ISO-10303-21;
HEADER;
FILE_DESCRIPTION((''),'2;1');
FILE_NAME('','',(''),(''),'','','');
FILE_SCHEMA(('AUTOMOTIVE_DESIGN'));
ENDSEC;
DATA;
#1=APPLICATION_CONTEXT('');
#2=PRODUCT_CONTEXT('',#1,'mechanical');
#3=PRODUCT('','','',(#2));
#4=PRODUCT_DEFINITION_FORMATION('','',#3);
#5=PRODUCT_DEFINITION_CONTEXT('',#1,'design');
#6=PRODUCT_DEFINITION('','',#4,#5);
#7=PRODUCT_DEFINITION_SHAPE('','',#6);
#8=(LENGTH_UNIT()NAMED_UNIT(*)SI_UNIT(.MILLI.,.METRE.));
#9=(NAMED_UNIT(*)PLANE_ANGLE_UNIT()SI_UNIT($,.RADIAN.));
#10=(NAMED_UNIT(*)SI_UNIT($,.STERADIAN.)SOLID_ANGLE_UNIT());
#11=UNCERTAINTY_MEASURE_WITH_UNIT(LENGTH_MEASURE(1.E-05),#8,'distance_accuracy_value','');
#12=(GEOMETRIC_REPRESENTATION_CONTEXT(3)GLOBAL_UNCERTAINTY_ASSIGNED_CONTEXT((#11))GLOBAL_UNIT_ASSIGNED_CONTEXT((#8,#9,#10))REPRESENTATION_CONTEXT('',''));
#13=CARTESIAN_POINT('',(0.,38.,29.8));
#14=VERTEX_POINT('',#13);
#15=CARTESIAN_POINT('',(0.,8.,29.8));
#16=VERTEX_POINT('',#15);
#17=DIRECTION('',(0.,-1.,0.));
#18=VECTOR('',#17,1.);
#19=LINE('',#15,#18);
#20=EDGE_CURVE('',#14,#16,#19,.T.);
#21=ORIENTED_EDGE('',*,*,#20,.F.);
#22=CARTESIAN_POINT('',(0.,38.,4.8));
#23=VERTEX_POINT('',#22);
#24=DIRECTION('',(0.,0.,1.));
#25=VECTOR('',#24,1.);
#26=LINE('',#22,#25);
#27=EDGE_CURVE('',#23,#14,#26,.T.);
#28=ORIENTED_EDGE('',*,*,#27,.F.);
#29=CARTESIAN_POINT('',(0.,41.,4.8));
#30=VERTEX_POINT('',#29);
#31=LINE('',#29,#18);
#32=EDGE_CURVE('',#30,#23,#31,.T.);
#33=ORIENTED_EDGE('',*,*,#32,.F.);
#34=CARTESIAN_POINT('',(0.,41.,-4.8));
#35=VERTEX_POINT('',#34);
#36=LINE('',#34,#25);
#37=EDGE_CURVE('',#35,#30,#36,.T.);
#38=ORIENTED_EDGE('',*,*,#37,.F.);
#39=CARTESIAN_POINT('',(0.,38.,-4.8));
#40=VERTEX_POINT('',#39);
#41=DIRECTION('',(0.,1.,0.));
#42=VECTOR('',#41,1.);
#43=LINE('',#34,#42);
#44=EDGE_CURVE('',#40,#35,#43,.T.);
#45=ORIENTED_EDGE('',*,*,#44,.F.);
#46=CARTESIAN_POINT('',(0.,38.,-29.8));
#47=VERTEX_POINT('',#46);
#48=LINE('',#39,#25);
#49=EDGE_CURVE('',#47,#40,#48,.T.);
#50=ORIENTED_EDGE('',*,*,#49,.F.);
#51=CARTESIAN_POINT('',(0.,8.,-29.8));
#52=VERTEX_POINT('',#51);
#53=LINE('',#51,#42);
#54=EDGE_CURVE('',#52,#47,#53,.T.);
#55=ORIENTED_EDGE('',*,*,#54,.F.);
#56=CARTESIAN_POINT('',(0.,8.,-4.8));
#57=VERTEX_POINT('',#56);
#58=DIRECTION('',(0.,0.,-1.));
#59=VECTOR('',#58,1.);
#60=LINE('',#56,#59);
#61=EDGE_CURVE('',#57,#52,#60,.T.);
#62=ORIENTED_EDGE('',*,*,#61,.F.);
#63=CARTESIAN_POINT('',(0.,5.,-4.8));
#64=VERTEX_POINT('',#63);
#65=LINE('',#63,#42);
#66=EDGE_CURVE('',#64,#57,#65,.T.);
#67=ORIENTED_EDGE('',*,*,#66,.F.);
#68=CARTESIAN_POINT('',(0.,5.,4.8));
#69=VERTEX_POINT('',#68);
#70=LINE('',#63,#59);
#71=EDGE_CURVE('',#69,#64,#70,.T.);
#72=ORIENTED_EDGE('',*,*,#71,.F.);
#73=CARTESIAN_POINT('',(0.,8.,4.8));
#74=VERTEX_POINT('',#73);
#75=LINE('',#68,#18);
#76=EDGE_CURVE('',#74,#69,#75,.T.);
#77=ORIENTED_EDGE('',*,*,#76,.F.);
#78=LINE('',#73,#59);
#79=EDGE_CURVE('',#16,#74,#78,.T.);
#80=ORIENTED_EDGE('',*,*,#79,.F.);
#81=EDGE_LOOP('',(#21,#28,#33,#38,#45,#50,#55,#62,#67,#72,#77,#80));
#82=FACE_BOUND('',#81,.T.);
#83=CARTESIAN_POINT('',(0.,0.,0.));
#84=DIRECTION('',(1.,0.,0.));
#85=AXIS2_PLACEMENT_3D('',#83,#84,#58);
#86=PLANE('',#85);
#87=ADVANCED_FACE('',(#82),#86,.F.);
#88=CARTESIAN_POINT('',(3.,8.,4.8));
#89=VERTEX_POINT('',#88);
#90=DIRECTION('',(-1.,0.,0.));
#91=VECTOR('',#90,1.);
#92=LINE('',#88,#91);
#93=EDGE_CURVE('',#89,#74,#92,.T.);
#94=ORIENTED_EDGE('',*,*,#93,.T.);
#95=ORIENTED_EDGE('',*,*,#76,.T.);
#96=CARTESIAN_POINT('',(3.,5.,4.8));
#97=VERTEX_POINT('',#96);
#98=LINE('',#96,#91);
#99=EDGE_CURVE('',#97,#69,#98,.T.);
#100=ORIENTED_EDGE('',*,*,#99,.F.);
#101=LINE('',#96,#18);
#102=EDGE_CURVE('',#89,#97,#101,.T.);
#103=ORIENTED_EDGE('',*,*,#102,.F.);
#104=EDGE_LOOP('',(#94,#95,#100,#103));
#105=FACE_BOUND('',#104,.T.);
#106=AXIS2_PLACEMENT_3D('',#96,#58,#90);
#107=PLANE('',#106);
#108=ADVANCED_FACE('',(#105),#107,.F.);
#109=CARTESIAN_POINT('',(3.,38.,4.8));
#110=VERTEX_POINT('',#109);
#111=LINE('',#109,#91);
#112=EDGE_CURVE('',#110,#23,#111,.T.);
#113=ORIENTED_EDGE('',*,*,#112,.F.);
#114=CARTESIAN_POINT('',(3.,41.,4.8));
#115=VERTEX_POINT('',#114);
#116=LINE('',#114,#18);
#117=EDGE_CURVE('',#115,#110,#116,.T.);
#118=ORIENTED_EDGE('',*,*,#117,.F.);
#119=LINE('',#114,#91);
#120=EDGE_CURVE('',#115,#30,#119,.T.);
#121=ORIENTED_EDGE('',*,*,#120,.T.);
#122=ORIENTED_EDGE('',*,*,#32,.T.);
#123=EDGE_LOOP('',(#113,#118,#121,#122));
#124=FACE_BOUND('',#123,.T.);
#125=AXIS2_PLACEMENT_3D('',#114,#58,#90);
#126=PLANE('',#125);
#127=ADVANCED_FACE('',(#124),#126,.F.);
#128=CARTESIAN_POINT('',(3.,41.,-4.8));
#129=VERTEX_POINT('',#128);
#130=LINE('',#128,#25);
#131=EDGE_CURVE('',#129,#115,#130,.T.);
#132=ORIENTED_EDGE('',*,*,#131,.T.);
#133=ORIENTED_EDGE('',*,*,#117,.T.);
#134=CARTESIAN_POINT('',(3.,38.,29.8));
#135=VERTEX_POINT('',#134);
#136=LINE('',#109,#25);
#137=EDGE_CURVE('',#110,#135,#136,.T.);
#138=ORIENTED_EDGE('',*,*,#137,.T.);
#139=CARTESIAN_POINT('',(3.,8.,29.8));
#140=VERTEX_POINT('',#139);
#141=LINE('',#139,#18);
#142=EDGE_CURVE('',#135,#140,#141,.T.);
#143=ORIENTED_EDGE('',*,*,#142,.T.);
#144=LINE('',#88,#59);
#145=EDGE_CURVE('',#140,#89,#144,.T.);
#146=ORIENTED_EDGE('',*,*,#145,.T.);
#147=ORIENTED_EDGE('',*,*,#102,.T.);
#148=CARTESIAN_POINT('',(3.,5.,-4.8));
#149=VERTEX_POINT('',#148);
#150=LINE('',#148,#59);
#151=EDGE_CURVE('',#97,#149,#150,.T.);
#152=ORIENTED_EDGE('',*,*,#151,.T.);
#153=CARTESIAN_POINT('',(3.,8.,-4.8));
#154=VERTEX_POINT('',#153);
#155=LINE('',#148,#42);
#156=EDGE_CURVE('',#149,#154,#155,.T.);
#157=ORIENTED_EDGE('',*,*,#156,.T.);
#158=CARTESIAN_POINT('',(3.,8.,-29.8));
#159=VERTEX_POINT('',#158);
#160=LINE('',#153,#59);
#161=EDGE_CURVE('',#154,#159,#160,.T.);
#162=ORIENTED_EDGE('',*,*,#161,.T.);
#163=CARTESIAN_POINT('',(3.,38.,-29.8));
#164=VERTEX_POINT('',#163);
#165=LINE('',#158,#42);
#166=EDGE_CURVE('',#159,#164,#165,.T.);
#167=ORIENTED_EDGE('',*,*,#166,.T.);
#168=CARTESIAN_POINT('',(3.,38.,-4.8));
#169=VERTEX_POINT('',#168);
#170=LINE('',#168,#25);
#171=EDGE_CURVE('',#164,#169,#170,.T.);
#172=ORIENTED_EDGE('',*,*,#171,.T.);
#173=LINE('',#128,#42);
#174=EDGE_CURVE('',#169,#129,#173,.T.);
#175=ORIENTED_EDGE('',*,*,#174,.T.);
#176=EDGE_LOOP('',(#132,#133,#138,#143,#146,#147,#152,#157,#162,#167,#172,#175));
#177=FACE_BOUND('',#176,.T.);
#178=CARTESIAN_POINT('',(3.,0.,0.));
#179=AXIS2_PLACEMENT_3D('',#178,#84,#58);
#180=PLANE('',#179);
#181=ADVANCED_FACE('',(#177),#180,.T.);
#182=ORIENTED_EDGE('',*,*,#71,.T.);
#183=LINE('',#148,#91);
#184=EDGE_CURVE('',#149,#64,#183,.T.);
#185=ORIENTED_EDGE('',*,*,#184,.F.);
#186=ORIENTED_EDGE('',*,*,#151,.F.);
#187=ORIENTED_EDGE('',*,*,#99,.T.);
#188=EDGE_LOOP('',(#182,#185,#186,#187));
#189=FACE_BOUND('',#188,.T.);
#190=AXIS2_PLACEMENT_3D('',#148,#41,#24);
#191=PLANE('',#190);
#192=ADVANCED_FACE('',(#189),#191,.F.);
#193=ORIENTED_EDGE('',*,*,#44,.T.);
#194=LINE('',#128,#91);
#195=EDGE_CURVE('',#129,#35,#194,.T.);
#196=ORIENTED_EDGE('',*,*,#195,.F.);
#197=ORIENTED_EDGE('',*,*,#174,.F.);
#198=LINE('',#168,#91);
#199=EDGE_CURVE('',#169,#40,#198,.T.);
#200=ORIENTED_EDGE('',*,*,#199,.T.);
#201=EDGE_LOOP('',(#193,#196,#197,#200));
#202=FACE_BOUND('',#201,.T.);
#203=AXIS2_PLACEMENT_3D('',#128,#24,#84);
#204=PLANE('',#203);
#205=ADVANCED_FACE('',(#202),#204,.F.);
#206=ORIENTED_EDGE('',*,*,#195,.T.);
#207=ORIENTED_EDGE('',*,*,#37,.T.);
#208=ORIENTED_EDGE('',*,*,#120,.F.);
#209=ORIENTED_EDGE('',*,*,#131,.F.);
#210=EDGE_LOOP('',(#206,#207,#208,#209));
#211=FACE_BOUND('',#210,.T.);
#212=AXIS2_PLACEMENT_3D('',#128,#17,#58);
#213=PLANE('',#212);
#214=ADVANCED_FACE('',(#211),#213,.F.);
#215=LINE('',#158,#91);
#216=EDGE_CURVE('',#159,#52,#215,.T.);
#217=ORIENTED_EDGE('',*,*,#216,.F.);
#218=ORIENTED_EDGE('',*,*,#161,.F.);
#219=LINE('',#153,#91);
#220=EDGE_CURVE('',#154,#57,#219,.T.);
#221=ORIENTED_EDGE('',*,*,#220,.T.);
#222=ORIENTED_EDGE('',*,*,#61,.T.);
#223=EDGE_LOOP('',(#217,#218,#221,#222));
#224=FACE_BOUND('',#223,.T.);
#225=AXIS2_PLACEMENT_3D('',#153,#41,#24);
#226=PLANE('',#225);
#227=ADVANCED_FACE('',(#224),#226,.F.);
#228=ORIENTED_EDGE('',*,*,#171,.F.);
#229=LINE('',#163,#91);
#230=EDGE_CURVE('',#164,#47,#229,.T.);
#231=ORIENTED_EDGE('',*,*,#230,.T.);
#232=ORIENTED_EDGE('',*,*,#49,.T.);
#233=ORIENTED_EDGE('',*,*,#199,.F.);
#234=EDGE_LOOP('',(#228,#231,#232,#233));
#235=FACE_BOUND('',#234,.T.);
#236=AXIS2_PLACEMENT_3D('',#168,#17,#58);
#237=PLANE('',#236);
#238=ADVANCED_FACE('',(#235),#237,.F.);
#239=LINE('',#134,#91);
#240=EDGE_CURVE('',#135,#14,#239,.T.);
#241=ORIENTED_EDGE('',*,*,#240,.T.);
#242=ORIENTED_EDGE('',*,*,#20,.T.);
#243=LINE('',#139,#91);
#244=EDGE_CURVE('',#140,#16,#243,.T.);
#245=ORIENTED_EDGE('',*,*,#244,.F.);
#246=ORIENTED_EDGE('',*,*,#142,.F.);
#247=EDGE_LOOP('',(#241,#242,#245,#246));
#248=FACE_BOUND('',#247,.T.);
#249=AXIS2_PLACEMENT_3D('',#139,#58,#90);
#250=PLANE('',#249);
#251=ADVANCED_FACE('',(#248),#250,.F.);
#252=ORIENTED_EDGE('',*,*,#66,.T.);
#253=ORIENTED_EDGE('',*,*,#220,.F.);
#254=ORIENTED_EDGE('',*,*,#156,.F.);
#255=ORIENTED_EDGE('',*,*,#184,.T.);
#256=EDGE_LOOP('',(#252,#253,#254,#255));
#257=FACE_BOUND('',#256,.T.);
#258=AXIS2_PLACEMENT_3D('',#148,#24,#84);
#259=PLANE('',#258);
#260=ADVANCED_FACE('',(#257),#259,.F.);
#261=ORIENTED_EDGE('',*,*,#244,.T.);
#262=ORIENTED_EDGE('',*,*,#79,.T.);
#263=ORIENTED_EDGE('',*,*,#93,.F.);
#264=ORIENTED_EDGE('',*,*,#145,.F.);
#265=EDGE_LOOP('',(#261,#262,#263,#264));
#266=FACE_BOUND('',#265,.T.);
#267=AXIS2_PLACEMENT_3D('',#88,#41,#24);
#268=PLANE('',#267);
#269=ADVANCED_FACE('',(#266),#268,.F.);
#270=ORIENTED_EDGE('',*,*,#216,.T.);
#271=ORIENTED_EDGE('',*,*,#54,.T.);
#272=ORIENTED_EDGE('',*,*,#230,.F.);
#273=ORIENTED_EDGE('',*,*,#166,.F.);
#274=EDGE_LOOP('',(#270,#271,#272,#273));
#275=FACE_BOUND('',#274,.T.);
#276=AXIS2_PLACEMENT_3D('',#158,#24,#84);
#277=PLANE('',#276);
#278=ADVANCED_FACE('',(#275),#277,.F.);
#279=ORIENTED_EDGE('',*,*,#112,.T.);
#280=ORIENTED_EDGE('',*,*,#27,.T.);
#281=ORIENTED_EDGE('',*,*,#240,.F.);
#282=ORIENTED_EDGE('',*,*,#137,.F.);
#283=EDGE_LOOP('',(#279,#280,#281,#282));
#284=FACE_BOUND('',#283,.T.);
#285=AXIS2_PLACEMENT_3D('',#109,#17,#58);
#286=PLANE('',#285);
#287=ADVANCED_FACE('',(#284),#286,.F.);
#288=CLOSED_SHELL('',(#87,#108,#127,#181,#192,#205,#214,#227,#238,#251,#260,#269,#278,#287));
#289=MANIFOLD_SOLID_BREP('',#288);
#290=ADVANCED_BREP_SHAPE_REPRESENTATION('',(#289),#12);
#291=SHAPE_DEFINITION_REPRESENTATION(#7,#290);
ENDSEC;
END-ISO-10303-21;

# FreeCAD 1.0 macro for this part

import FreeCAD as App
import Part
import Sketcher

V = App.Vector


def add_polygon(sketch, points):
    """Adds a closed chain of lines whose ends are joined by coincident constraints."""
    first, n = sketch.GeometryCount, len(points)
    for a, b in zip(points, points[1:] + points[:1]):
        sketch.addGeometry(Part.LineSegment(App.Vector(*a, 0), App.Vector(*b, 0)), False)
    for i in range(n):
        sketch.addConstraint(Sketcher.Constraint("Coincident", first + i, 2, first + (i + 1) % n, 1))

doc = App.newDocument("Part")
body = doc.addObject("PartDesign::Body", "Body")

# Sketch on YZ plane
sketch1 = body.newObject("Sketcher::SketchObject", "Sketch")
sketch1.AttachmentSupport = (doc.getObject("YZ_Plane"), [""])
sketch1.MapMode = "FlatFace"
add_polygon(sketch1, [(38, -4.8), (41, -4.8), (41, 4.8), (38, 4.8), (38, 29.8), (8, 29.8), (8, 4.8), (5, 4.8), (5, -4.8), (8, -4.8), (8, -29.8), (38, -29.8)])  # lines 0-11
sketch1.addConstraint([
    Sketcher.Constraint("Horizontal", 0),
    Sketcher.Constraint("Vertical", 1),
    Sketcher.Constraint("Horizontal", 2),
    Sketcher.Constraint("Vertical", 3),
    Sketcher.Constraint("Horizontal", 4),
    Sketcher.Constraint("Vertical", 5),
    Sketcher.Constraint("Horizontal", 6),
    Sketcher.Constraint("Vertical", 7),
    Sketcher.Constraint("Horizontal", 8),
    Sketcher.Constraint("Vertical", 9),
    Sketcher.Constraint("Horizontal", 10),
    Sketcher.Constraint("Vertical", 11),
    Sketcher.Constraint("Symmetric", 5, 2, 8, 2, -1),
    Sketcher.Constraint("Symmetric", 3, 2, 10, 2, -1),
    Sketcher.Constraint("Horizontal", 2, 2, 5, 2),
    Sketcher.Constraint("Horizontal", 0, 2, 7, 2),
    Sketcher.Constraint("Equal", 2, 6),
    Sketcher.Constraint("DistanceX", 0, 1, 0, 2, 3.0),
    Sketcher.Constraint("DistanceX", 4, 2, 4, 1, 30.0),
    Sketcher.Constraint("DistanceY", 3, 1, 3, 2, 25.0),
    Sketcher.Constraint("DistanceY", 1, 1, 1, 2, 9.6),
    Sketcher.Constraint("DistanceX", -1, 1, 0, 2, 41.0),
])
pad1 = body.newObject("PartDesign::Pad", "Pad")
pad1.Profile = sketch1
pad1.Length = 3

doc.recompute()
